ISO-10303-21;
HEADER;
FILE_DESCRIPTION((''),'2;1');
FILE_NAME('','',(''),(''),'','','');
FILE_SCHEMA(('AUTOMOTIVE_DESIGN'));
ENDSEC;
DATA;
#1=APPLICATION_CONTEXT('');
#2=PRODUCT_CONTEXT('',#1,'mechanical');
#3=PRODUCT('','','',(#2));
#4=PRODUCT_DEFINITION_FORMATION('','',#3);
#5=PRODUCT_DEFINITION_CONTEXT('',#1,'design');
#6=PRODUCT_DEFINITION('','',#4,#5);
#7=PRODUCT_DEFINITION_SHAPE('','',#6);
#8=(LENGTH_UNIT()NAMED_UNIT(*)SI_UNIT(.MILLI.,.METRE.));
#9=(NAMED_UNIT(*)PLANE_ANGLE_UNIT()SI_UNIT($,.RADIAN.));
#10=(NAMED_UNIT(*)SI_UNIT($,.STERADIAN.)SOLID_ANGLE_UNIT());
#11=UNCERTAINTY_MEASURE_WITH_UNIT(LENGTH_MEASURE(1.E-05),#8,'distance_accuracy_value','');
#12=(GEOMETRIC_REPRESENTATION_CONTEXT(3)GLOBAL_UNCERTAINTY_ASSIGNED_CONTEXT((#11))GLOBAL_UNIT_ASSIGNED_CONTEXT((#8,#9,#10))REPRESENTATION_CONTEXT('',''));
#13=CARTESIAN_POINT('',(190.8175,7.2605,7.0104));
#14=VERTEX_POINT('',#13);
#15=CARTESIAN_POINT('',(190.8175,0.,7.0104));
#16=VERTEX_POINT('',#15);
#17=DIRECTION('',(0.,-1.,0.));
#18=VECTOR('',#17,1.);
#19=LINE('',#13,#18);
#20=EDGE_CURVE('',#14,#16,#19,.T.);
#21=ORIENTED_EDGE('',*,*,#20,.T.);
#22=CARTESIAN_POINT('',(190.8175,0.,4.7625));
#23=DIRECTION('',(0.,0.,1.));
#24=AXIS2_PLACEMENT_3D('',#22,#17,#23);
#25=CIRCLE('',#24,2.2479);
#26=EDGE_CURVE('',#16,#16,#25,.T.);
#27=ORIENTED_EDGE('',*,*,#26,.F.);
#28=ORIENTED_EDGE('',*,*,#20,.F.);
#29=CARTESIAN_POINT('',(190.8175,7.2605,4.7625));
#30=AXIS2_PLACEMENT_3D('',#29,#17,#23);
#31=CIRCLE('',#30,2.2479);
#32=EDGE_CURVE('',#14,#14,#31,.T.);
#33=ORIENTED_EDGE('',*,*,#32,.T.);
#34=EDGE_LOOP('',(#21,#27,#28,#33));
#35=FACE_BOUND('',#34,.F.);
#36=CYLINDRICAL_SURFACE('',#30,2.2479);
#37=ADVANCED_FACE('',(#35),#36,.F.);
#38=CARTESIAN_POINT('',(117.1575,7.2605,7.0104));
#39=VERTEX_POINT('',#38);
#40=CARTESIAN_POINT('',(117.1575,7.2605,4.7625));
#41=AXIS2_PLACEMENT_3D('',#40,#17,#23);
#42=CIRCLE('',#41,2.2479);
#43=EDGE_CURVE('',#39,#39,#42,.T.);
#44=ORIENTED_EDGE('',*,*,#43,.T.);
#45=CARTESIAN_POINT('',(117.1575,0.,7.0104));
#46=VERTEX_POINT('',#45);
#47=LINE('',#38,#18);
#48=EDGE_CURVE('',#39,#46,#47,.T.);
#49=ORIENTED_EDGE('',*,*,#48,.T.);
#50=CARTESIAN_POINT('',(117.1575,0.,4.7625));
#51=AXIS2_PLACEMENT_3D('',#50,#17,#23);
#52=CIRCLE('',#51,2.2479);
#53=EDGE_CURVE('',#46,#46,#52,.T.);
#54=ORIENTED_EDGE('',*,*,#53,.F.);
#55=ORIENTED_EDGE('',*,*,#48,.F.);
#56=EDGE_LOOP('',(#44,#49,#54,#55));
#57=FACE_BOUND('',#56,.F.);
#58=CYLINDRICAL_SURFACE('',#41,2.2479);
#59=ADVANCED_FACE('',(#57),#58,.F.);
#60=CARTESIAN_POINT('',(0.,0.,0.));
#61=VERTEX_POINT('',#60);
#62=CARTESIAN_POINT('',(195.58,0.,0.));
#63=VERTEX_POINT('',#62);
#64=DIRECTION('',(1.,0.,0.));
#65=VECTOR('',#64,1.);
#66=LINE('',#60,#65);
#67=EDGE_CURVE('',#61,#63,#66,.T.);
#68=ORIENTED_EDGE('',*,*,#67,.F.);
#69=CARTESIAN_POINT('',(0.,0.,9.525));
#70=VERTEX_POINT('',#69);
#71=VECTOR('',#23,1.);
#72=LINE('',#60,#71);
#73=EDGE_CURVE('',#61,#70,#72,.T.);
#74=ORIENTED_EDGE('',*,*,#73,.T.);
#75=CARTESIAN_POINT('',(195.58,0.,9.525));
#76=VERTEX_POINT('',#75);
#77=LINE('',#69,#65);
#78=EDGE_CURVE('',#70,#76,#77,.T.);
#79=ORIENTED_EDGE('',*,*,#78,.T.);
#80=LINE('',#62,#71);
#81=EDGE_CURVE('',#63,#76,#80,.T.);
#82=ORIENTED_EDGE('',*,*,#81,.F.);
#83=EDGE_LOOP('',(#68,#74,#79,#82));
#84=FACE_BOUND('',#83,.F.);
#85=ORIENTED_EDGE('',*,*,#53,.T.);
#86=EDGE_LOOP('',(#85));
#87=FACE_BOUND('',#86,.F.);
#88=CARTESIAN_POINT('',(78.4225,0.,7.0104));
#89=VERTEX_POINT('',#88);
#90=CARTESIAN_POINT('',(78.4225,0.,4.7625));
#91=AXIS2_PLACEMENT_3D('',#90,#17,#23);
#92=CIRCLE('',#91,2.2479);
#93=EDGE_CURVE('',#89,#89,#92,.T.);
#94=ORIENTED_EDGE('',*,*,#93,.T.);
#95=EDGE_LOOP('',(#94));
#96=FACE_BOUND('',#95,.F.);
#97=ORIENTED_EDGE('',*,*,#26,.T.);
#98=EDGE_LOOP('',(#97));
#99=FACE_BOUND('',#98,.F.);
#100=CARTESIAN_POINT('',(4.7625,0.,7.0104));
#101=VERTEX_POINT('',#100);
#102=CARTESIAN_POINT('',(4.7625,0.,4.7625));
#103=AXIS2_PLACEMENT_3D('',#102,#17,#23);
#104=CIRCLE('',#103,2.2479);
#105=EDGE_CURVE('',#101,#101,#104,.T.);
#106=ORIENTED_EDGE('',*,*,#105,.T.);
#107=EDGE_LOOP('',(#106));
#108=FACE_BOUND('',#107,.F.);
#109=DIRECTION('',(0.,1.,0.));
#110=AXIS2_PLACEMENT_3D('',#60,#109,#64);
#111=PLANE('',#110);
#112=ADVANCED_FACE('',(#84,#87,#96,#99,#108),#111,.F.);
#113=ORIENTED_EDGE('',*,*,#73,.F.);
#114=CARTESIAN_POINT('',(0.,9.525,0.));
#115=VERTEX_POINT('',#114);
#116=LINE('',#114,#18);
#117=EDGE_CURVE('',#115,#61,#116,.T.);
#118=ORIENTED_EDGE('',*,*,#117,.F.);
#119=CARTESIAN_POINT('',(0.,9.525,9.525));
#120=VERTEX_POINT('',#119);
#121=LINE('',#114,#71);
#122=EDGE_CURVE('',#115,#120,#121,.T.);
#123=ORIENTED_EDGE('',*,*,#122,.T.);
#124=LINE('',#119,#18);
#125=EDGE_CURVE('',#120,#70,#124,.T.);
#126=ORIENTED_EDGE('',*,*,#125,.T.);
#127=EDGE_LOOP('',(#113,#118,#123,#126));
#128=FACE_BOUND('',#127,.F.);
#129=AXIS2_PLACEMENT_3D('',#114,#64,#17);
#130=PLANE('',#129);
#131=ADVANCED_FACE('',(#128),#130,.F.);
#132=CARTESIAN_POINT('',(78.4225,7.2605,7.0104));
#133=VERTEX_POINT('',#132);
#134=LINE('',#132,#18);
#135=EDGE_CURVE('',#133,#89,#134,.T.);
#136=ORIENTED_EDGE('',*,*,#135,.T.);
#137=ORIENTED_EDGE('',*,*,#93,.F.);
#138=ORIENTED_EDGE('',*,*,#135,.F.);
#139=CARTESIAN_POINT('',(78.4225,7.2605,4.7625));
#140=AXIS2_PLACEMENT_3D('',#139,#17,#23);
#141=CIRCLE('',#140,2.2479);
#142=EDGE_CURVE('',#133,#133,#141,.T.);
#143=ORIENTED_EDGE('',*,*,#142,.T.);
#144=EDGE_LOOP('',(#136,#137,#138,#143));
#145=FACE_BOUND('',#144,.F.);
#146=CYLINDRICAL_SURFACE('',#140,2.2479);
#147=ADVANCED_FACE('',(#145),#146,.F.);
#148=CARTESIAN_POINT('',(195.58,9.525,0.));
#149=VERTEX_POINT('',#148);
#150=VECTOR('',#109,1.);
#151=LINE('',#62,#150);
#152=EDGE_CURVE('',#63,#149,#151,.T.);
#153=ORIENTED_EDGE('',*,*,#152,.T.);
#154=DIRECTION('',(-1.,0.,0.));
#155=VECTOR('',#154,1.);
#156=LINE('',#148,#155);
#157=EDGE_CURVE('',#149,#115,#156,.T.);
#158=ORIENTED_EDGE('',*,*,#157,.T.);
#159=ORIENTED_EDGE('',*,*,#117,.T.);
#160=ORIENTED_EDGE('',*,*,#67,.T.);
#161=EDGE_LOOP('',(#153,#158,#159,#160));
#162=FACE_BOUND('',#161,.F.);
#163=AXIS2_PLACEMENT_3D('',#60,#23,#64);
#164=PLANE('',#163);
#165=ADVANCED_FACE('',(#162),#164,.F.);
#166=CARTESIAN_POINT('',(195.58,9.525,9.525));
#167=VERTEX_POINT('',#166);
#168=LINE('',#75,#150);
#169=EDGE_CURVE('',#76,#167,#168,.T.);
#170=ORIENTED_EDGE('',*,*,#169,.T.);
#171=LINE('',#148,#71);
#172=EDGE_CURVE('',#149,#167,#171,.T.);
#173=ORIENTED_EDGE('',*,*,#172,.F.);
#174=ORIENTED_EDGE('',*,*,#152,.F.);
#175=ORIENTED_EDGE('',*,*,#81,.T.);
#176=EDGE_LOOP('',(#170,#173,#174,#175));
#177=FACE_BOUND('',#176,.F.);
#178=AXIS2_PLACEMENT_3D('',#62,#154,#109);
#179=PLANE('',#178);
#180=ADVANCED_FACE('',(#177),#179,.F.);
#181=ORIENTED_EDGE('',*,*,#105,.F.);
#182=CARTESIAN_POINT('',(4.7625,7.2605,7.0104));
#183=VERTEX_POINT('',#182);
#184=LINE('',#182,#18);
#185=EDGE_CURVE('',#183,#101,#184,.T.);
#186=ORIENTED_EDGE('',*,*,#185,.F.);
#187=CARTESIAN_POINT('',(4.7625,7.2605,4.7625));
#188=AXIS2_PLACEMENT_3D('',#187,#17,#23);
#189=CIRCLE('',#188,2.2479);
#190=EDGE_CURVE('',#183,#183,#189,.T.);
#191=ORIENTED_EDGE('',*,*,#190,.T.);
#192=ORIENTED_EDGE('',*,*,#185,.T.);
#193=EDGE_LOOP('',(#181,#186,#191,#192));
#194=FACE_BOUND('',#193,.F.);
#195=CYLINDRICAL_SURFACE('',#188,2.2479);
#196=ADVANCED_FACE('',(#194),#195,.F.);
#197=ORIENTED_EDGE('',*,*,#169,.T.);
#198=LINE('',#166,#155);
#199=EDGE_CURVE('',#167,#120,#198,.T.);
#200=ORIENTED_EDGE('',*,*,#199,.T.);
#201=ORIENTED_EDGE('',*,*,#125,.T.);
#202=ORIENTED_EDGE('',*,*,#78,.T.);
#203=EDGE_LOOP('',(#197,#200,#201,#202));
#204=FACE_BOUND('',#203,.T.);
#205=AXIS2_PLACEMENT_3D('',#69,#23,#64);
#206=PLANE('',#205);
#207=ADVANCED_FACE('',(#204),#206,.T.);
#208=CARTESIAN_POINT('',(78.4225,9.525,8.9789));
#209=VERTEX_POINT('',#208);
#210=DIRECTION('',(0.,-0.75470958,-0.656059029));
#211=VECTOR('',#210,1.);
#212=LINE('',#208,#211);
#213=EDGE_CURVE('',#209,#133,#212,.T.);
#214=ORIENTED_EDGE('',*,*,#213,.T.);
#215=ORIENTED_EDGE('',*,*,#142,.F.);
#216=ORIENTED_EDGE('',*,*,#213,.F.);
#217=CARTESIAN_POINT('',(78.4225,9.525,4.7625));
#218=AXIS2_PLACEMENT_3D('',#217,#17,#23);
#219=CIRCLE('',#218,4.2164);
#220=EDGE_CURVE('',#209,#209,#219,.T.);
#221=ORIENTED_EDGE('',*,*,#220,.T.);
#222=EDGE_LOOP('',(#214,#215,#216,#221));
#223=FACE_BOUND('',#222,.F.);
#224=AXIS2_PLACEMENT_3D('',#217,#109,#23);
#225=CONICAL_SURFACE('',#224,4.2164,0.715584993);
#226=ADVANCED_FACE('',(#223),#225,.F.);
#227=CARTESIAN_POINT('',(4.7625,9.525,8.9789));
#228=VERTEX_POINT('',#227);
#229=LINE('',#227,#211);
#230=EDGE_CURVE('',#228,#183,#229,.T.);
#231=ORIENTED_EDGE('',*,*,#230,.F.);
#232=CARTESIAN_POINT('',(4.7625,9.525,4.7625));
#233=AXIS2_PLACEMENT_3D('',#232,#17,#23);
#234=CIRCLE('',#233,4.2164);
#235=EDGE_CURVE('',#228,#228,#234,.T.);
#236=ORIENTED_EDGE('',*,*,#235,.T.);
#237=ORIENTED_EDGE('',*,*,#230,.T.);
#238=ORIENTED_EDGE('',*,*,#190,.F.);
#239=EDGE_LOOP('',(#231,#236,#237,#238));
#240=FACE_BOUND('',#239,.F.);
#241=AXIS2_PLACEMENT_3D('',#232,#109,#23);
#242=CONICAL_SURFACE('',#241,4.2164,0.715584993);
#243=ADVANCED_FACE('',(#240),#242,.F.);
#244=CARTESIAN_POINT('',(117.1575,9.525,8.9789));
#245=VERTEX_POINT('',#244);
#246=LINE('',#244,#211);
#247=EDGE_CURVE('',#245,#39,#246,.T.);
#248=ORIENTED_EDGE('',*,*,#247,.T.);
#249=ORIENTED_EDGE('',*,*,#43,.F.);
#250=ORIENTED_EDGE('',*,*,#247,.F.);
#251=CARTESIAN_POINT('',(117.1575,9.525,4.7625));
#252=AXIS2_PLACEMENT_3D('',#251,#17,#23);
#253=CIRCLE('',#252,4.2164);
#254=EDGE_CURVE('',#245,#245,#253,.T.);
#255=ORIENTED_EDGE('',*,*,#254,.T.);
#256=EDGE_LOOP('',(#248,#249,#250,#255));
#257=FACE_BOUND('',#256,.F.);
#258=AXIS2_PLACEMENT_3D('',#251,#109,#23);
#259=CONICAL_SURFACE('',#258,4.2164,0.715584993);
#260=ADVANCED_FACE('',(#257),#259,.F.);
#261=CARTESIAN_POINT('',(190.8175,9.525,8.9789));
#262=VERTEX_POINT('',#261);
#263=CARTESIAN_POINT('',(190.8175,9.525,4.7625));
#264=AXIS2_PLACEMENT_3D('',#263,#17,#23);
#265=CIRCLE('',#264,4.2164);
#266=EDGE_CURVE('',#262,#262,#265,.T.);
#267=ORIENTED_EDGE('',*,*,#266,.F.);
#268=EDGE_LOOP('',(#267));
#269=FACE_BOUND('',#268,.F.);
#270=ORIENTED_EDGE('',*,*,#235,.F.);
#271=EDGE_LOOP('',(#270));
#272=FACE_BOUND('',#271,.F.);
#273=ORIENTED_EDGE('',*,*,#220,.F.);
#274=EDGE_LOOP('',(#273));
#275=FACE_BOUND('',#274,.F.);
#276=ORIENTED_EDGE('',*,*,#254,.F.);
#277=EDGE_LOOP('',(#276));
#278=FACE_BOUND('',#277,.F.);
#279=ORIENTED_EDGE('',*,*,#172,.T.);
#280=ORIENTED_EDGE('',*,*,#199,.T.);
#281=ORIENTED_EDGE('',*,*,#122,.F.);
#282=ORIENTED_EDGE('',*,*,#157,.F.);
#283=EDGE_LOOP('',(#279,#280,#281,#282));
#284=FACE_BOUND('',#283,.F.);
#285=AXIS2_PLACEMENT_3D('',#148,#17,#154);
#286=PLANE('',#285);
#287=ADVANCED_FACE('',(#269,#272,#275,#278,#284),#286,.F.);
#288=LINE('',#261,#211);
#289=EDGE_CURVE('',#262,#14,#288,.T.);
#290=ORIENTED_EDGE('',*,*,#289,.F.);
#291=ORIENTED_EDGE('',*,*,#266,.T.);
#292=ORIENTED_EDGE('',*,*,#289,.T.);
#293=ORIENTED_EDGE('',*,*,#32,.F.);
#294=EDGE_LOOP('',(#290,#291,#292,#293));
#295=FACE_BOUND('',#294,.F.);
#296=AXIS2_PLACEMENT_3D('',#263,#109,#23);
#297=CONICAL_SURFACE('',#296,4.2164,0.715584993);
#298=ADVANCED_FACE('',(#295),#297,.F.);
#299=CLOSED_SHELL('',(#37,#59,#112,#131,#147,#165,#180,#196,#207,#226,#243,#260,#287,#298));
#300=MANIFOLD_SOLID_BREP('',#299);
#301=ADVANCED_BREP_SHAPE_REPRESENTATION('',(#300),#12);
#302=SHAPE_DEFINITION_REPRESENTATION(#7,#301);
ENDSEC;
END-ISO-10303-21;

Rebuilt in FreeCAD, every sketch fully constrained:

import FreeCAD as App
import Part
import Sketcher

V = App.Vector
Q = App.Units.Quantity


def add_polygon(sketch, points):
    """Adds a closed chain of lines whose ends are joined by coincident constraints."""
    first, n = sketch.GeometryCount, len(points)
    for a, b in zip(points, points[1:] + points[:1]):
        sketch.addGeometry(Part.LineSegment(App.Vector(*a, 0), App.Vector(*b, 0)), False)
    for i in range(n):
        sketch.addConstraint(Sketcher.Constraint("Coincident", first + i, 2, first + (i + 1) % n, 1))

doc = App.newDocument("Part")
body = doc.addObject("PartDesign::Body", "Body")

# Sketch on XY plane
sketch1 = body.newObject("Sketcher::SketchObject", "Sketch")
sketch1.AttachmentSupport = (doc.getObject("XY_Plane"), [""])
sketch1.MapMode = "FlatFace"
add_polygon(sketch1, [(0, 10), (0, 0), (196, 0), (196, 10)])  # lines 0-3
sketch1.addConstraint(Sketcher.Constraint("Vertical", 0))
sketch1.addConstraint(Sketcher.Constraint("Horizontal", 1))
sketch1.addConstraint(Sketcher.Constraint("Vertical", 2))
sketch1.addConstraint(Sketcher.Constraint("Horizontal", 3))
sketch1.addConstraint(Sketcher.Constraint("Coincident", 0, 2, -1, 1))
sketch1.addConstraint(Sketcher.Constraint("DistanceX", 1, 1, 1, 2, Q("7.7 in")))
sketch1.addConstraint(Sketcher.Constraint("DistanceY", 0, 2, 0, 1, Q("0.375 in")))
pad1 = body.newObject("PartDesign::Pad", "Pad")
pad1.Profile = sketch1
pad1.Length = Q("0.375 in")

# Sketch on XZ plane
sketch2 = body.newObject("Sketcher::SketchObject", "Sketch001")
sketch2.AttachmentSupport = (doc.getObject("XZ_Plane"), [""])
sketch2.MapMode = "FlatFace"
sketch2.AttachmentOffset = App.Placement(V(0, 0, -0.375 * 25.4), App.Rotation())
sketch2.addGeometry(Part.Circle(V(4.8, 4.8, 0), V(0, 0, 1), 2.2), False)
sketch2.addGeometry(Part.Circle(V(78.4, 4.8, 0), V(0, 0, 1), 2.2), False)
sketch2.addGeometry(Part.Circle(V(117.2, 4.8, 0), V(0, 0, 1), 2.2), False)
sketch2.addGeometry(Part.Circle(V(190.8, 4.8, 0), V(0, 0, 1), 2.2), False)
sketch2.addConstraint(Sketcher.Constraint("Equal", 0, 1))
sketch2.addConstraint(Sketcher.Constraint("Equal", 1, 2))
sketch2.addConstraint(Sketcher.Constraint("Equal", 2, 3))
sketch2.addConstraint(Sketcher.Constraint("Horizontal", 0, 3, 1, 3))
sketch2.addConstraint(Sketcher.Constraint("Horizontal", 1, 3, 2, 3))
sketch2.addConstraint(Sketcher.Constraint("Horizontal", 2, 3, 3, 3))
sketch2.addConstraint(Sketcher.Constraint("Diameter", 0, Q("0.177 in")))
sketch2.addConstraint(Sketcher.Constraint("DistanceX", 0, 3, 1, 3, Q("2.9 in")))
sketch2.addConstraint(Sketcher.Constraint("DistanceX", 2, 3, 3, 3, Q("2.9 in")))
sketch2.addConstraint(Sketcher.Constraint("DistanceX", -1, 1, 0, 3, Q("0.1875 in")))
sketch2.addConstraint(Sketcher.Constraint("DistanceY", -1, 1, 0, 3, Q("0.1875 in")))
sketch2.addConstraint(Sketcher.Constraint("DistanceX", 1, 3, 2, 3, Q("1.525 in")))
doc.recompute()
hole = body.newObject("PartDesign::Hole", "Hole")
hole.Profile = sketch2
hole.ThreadType = "None"
hole.Diameter = Q("0.177 in")
hole.DepthType = "ThroughAll"
hole.HoleCutType = "Countersink"
hole.HoleCutDiameter = Q("0.332 in")
hole.HoleCutCountersinkAngle = 82
hole.Reversed = True

doc.recompute()
